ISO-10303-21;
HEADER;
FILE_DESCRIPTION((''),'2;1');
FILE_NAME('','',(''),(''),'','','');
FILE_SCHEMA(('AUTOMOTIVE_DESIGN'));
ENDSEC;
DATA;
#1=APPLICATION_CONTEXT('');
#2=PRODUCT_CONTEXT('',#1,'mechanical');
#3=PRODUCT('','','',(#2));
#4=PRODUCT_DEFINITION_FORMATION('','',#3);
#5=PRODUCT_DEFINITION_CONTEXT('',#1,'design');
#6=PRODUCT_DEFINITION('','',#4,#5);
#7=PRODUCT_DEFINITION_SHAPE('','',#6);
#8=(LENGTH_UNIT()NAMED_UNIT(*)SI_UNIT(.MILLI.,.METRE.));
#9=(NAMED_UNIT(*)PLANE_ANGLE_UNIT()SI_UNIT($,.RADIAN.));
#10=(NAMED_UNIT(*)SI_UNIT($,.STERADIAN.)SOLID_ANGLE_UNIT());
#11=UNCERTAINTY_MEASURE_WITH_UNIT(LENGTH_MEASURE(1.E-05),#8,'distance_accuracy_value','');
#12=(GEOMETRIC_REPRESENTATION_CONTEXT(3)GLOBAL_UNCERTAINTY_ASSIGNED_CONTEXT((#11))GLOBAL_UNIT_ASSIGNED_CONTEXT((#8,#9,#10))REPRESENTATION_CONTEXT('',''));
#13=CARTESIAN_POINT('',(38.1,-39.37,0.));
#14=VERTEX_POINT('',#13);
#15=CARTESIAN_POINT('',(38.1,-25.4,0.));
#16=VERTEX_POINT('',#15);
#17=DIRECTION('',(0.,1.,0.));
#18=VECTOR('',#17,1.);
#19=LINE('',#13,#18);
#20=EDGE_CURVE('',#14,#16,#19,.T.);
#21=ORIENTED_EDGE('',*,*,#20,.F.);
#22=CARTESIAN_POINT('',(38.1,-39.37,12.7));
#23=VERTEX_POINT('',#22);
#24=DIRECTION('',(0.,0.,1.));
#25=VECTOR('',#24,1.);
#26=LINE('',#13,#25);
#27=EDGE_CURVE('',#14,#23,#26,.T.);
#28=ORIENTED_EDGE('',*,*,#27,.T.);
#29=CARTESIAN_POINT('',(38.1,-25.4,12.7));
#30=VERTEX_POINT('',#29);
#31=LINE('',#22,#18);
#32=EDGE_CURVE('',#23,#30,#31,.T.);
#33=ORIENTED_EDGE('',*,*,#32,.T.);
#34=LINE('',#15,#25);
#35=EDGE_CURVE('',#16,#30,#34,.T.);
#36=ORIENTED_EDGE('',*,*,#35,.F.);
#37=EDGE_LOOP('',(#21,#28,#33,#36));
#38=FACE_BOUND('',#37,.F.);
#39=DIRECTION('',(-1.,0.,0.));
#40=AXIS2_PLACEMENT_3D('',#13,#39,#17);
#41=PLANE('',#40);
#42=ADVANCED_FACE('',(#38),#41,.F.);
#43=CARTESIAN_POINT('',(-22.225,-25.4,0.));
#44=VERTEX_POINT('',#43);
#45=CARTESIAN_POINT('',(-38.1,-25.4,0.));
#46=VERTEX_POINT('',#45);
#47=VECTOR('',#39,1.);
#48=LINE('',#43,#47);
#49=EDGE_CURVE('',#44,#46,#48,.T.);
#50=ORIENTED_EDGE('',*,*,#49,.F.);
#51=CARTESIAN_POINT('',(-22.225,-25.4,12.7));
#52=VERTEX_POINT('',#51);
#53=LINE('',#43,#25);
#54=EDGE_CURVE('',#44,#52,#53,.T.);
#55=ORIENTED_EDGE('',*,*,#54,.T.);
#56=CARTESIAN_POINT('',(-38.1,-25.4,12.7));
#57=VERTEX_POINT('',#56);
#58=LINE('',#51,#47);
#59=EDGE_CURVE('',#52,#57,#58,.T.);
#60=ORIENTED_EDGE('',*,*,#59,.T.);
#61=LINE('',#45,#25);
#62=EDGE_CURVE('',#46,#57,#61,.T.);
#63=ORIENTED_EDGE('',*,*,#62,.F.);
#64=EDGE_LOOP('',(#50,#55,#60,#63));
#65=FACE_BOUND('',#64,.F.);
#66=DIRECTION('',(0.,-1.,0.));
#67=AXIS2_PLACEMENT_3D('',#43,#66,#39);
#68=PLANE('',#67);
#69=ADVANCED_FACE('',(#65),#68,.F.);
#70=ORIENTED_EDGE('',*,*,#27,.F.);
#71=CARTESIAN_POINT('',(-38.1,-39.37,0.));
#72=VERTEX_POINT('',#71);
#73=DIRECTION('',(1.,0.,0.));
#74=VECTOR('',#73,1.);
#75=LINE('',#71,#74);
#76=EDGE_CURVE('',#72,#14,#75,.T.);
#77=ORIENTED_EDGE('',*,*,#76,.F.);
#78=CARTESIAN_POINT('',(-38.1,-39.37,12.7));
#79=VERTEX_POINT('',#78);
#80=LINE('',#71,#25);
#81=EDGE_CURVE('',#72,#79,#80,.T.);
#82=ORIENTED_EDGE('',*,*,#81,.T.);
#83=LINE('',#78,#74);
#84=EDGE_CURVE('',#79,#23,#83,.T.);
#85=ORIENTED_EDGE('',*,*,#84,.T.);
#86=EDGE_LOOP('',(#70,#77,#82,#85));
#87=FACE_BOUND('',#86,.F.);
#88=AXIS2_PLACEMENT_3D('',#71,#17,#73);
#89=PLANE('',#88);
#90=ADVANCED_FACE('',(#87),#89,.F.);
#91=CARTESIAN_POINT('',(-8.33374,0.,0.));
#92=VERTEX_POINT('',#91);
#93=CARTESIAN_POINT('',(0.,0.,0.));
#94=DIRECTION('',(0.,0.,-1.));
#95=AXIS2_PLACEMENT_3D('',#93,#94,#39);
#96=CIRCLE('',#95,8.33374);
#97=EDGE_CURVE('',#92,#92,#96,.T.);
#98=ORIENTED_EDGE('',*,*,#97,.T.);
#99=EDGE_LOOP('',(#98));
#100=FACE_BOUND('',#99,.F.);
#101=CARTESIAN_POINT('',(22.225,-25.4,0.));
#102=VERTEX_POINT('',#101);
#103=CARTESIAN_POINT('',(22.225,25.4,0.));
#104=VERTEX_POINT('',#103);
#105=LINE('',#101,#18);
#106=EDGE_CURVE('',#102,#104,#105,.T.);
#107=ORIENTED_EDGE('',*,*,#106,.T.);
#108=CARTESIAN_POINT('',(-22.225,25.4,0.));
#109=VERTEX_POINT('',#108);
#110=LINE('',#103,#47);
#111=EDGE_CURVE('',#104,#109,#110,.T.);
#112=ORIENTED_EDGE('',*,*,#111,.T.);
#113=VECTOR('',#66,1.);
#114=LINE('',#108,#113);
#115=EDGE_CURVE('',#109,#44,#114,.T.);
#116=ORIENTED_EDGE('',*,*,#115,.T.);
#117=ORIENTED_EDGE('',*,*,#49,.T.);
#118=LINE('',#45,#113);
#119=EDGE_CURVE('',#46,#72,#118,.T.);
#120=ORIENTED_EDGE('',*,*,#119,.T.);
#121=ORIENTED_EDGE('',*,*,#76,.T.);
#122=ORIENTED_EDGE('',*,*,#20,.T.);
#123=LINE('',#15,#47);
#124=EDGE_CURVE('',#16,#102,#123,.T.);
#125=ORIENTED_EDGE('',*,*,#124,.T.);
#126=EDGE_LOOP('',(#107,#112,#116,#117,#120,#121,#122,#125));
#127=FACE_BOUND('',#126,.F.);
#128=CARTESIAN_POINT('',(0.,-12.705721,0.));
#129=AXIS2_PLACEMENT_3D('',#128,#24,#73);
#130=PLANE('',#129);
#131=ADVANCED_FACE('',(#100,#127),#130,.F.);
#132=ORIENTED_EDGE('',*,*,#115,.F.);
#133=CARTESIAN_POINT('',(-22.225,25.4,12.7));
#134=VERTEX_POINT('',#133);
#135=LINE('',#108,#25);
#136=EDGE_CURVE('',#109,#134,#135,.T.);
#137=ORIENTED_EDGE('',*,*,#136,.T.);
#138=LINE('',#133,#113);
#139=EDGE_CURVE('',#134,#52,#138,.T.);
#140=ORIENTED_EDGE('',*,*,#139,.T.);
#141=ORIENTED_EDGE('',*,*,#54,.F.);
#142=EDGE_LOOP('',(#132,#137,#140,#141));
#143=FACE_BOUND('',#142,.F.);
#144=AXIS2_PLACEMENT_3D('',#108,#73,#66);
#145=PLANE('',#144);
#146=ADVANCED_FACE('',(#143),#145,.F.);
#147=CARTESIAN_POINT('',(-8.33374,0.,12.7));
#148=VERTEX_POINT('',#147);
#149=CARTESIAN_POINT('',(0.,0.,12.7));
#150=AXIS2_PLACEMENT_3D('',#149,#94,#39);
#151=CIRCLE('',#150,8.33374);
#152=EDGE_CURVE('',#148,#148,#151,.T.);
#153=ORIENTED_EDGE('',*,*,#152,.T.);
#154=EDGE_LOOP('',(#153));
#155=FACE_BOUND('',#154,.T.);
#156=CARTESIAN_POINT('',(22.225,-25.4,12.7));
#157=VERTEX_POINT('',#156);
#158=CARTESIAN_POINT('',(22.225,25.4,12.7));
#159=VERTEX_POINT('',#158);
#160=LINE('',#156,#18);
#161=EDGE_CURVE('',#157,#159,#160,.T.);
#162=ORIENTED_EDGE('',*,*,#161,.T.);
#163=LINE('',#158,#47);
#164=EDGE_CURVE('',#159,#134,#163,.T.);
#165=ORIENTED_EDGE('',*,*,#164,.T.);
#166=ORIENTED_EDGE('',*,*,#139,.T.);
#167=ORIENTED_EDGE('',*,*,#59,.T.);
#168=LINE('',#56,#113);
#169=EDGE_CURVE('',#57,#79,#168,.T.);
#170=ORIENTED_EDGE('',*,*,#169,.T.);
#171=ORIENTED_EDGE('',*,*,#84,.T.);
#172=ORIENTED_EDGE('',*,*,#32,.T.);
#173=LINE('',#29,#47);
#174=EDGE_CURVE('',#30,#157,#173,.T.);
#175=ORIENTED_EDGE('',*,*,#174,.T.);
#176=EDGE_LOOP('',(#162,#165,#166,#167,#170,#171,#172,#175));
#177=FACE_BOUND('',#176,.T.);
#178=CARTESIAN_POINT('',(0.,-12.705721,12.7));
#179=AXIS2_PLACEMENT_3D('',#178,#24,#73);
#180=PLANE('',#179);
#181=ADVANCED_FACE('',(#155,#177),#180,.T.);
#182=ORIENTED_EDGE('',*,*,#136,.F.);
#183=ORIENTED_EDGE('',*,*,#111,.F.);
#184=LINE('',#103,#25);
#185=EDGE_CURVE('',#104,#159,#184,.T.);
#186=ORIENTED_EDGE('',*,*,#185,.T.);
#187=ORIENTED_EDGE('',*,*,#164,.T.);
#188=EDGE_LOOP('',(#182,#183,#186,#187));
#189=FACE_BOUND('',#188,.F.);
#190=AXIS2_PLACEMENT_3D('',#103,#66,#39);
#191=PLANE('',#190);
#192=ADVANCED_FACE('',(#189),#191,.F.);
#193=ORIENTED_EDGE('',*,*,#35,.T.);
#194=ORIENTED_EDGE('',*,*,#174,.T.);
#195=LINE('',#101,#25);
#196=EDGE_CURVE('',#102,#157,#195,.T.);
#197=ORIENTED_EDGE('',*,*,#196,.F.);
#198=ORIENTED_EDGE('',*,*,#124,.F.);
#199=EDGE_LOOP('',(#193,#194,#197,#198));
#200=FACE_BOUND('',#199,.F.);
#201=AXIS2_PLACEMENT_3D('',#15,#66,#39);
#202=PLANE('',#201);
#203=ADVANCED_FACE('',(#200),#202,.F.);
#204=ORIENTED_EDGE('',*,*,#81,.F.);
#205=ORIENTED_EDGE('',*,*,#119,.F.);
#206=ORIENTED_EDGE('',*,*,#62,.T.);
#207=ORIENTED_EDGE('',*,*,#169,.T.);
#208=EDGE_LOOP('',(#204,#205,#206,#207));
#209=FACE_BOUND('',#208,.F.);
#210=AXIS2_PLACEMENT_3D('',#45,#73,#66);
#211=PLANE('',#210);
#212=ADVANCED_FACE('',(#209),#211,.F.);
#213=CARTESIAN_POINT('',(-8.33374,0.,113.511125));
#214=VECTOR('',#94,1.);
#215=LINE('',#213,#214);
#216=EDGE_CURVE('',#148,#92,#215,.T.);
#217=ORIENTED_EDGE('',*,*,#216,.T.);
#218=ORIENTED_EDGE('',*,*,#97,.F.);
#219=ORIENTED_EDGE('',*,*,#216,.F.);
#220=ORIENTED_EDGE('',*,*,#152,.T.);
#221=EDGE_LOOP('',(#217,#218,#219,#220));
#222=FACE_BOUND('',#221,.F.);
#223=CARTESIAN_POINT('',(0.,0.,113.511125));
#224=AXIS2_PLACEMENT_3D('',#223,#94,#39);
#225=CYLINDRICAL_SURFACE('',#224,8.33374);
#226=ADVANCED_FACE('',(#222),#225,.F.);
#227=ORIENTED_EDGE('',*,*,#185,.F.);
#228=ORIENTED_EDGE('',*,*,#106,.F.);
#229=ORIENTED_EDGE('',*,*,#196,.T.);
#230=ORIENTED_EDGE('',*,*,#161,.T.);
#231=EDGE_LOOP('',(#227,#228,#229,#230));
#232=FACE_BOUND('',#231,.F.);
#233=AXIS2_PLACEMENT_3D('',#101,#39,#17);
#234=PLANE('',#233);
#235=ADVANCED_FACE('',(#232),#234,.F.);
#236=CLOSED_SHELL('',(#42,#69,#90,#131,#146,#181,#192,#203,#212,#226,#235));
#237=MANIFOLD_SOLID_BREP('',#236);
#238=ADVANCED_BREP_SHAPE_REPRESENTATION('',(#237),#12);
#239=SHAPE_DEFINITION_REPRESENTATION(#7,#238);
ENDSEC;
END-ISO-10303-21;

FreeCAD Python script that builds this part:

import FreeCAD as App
import Part
import Sketcher
Q = App.Units.Quantity


def add_polygon(sketch, points):
    """Adds a closed chain of lines whose ends are joined by coincident constraints."""
    first, n = sketch.GeometryCount, len(points)
    for a, b in zip(points, points[1:] + points[:1]):
        sketch.addGeometry(Part.LineSegment(App.Vector(*a, 0), App.Vector(*b, 0)), False)
    for i in range(n):
        sketch.addConstraint(Sketcher.Constraint("Coincident", first + i, 2, first + (i + 1) % n, 1))

doc = App.newDocument("Part")
body = doc.addObject("PartDesign::Body", "Body")

sketch1 = body.newObject("Sketcher::SketchObject", "Sketch")
sketch1.AttachmentSupport = (doc.getObject("XY_Plane"), [""])
sketch1.MapMode = "FlatFace"
add_polygon(sketch1, [(22.225, -25.4), (22.225, 25.4), (-22.225, 25.4), (-22.225, -25.4), (-38.1, -25.4), (-38.1, -39.37), (38.1, -39.37), (38.1, -25.4)])
sketch1.addConstraint([
    Sketcher.Constraint("Vertical", 0),
    Sketcher.Constraint("Horizontal", 1),
    Sketcher.Constraint("Vertical", 2),
    Sketcher.Constraint("Horizontal", 3),
    Sketcher.Constraint("Vertical", 4),
    Sketcher.Constraint("Horizontal", 5),
    Sketcher.Constraint("Vertical", 6),
    Sketcher.Constraint("Horizontal", 7),
    Sketcher.Constraint("Symmetric", 0, 2, 2, 2, -1, 1),
    Sketcher.Constraint("Symmetric", 3, 2, 6, 2, -2),
    Sketcher.Constraint("DistanceX", 5, 1, 5, 2, Q("3 in")),
    Sketcher.Constraint("DistanceY", 0, 1, 0, 2, Q("2 in")),
    Sketcher.Constraint("DistanceX", 1, 2, 1, 1, Q("1.75 in")),
    Sketcher.Constraint("DistanceY", 4, 2, 4, 1, Q("0.55 in")),
])
pad1 = body.newObject("PartDesign::Pad", "Pad")
pad1.Profile = sketch1
pad1.Length = Q("0.5 in")

sketch2 = body.newObject("Sketcher::SketchObject", "Sketch001")
sketch2.AttachmentSupport = (doc.getObject("XY_Plane"), [""])
sketch2.MapMode = "FlatFace"
sketch2.AttachmentOffset = App.Placement(App.Vector(0, 0, 0.5 * 25.4), App.Rotation())
sketch2.addGeometry(Part.Circle(App.Vector(0, 0, 0), App.Vector(0, 0, 1), 8.33374), False)
sketch2.addConstraint([
    Sketcher.Constraint("Coincident", 0, 3, -1, 1),
    Sketcher.Constraint("Diameter", 0, Q("0.6562 in")),
])
doc.recompute()
hole = body.newObject("PartDesign::Hole", "Hole")
hole.Profile = sketch2
hole.ThreadType = "None"
hole.Diameter = Q("0.6562 in")
hole.DepthType = "ThroughAll"

doc.recompute()
